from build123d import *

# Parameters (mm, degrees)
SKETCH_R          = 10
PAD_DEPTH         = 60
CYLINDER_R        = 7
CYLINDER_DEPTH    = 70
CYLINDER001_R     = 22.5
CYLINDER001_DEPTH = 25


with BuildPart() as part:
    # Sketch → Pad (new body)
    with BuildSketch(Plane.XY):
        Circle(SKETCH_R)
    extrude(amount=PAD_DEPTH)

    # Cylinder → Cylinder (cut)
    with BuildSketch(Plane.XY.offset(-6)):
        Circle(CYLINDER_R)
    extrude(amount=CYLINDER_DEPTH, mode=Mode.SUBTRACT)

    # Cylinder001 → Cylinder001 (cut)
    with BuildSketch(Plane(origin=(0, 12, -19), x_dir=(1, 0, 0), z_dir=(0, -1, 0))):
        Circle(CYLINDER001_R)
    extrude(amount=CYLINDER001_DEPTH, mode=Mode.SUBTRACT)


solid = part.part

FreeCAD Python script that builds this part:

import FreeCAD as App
import Part
import Sketcher
from FreeCAD import Vector
Q = App.Units.Quantity

doc = App.newDocument("Part")
params = doc.addObject("Spreadsheet::Sheet", "Params")
for row, (alias, value) in enumerate([
    ("sketch1_diameter", "20 mm"),
    ("pad1_length", "60 mm"),
    ("sketch2_diameter", "14 mm"),
    ("pocket1_length", "70 mm"),
    ("sketch3_diameter", "45 mm"),
    ("pocket2_length", "25 mm"),
], start=1):
    params.set(f"A{row}", alias)
    params.set(f"B{row}", "=" + value)
    params.setAlias(f"B{row}", alias)

body = doc.addObject("PartDesign::Body", "Body")

sketch1 = doc.addObject("Sketcher::SketchObject", "Sketch")
body.addObject(sketch1)
sketch1.AttachmentSupport = (doc.XY_Plane, [""])
sketch1.MapMode = "FlatFace"
sketch1.addGeometry(Part.Circle(Vector(0, 0, 0), Vector(0, 0, 1), 10), False)
sketch1.addConstraint([
    Sketcher.Constraint("Coincident", 0, 3, -1, 1),
    Sketcher.Constraint("Diameter", 0, Q("20 mm")),
])
sketch1.setExpression("Constraints[1]", "Params.sketch1_diameter")
pad1 = doc.addObject("PartDesign::Pad", "Pad")
body.addObject(pad1)
pad1.Profile = sketch1
pad1.setExpression("Length", "Params.pad1_length")

sketch2 = doc.addObject("Sketcher::SketchObject", "Sketch001")
body.addObject(sketch2)
sketch2.AttachmentSupport = (doc.XY_Plane, [""])
sketch2.MapMode = "FlatFace"
sketch2.AttachmentOffset = App.Placement(Vector(0, 0, -6), App.Rotation())
sketch2.addGeometry(Part.Circle(Vector(0, 0, 0), Vector(0, 0, 1), 7), False)
sketch2.addConstraint([
    Sketcher.Constraint("Coincident", 0, 3, -1, 1),
    Sketcher.Constraint("Diameter", 0, Q("14 mm")),
])
sketch2.setExpression("Constraints[1]", "Params.sketch2_diameter")
pocket1 = doc.addObject("PartDesign::Pocket", "Pocket")
body.addObject(pocket1)
pocket1.Profile = sketch2
pocket1.setExpression("Length", "Params.pocket1_length")
pocket1.Reversed = True

sketch3 = doc.addObject("Sketcher::SketchObject", "Sketch002")
body.addObject(sketch3)
sketch3.AttachmentSupport = (doc.XZ_Plane, [""])
sketch3.MapMode = "FlatFace"
sketch3.AttachmentOffset = App.Placement(Vector(0, 0, -12), App.Rotation())
sketch3.addGeometry(Part.Circle(Vector(0, -19, 0), Vector(0, 0, 1), 22.5), False)
sketch3.addConstraint([
    Sketcher.Constraint("PointOnObject", 0, 3, -2),
    Sketcher.Constraint("Diameter", 0, Q("45 mm")),
    Sketcher.Constraint("DistanceY", 0, 3, -1, 1, Q("19 mm")),
])
sketch3.setExpression("Constraints[1]", "Params.sketch3_diameter")
pocket2 = doc.addObject("PartDesign::Pocket", "Pocket001")
body.addObject(pocket2)
pocket2.Profile = sketch3
pocket2.setExpression("Length", "Params.pocket2_length")
pocket2.Reversed = True

doc.recompute()
